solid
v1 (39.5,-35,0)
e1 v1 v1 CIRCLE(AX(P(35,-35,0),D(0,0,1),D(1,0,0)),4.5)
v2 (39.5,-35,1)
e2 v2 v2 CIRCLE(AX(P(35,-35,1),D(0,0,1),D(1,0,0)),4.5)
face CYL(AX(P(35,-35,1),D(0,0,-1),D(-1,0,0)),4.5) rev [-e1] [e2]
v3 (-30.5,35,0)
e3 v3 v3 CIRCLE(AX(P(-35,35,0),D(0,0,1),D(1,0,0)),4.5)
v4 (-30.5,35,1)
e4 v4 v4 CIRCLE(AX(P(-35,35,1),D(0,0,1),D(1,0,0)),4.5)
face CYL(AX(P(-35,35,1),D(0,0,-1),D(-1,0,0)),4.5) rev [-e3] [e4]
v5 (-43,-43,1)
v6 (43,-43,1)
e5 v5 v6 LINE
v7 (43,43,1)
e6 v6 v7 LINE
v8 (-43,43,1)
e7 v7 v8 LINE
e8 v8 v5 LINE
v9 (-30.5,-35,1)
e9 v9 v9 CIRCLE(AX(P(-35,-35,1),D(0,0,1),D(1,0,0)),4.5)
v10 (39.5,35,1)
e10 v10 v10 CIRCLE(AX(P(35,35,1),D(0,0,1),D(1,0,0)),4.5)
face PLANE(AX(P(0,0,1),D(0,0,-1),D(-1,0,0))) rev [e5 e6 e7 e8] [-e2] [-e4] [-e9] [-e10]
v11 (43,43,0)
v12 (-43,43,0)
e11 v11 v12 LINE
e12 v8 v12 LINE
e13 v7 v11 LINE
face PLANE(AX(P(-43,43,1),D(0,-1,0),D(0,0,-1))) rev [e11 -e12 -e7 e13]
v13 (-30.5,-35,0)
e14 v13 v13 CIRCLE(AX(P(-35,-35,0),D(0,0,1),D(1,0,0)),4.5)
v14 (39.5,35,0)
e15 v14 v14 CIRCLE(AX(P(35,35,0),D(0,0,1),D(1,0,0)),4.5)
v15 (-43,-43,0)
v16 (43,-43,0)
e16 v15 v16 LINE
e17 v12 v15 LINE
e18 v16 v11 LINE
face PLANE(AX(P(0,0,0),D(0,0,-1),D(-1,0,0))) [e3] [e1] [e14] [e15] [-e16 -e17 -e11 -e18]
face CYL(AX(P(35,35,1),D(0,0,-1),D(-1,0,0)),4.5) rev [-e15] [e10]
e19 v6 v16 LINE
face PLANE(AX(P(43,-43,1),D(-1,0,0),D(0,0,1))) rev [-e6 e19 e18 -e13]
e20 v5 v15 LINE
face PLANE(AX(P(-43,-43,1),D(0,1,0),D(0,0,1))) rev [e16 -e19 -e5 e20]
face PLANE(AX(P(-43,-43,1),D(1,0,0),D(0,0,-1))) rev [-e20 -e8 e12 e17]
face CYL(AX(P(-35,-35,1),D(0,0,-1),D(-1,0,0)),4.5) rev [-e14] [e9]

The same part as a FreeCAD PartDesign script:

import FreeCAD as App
import Part
import Sketcher
Q = App.Units.Quantity

doc = App.newDocument("Part")
body = doc.addObject("PartDesign::Body", "Body")

sketch1 = doc.addObject("Sketcher::SketchObject", "Sketch")
body.addObject(sketch1)
sketch1.AttachmentSupport = (doc.XY_Plane, [""])
sketch1.MapMode = "FlatFace"
sketch1.addGeometry(Part.LineSegment(App.Vector(-43, 43, 0), App.Vector(-43, -43, 0)), False)
sketch1.addGeometry(Part.LineSegment(App.Vector(-43, -43, 0), App.Vector(43, -43, 0)), False)
sketch1.addGeometry(Part.LineSegment(App.Vector(43, -43, 0), App.Vector(43, 43, 0)), False)
sketch1.addGeometry(Part.LineSegment(App.Vector(43, 43, 0), App.Vector(-43, 43, 0)), False)
sketch1.addGeometry(Part.Circle(App.Vector(-35, -35, 0), App.Vector(0, 0, 1), 4.5), False)
sketch1.addGeometry(Part.Circle(App.Vector(35, -35, 0), App.Vector(0, 0, 1), 4.5), False)
sketch1.addGeometry(Part.Circle(App.Vector(-35, 35, 0), App.Vector(0, 0, 1), 4.5), False)
sketch1.addGeometry(Part.Circle(App.Vector(35, 35, 0), App.Vector(0, 0, 1), 4.5), False)
sketch1.addConstraint(Sketcher.Constraint("Coincident", 0, 2, 1, 1))
sketch1.addConstraint(Sketcher.Constraint("Coincident", 1, 2, 2, 1))
sketch1.addConstraint(Sketcher.Constraint("Coincident", 2, 2, 3, 1))
sketch1.addConstraint(Sketcher.Constraint("Coincident", 3, 2, 0, 1))
sketch1.addConstraint(Sketcher.Constraint("Vertical", 0))
sketch1.addConstraint(Sketcher.Constraint("Horizontal", 1))
sketch1.addConstraint(Sketcher.Constraint("Vertical", 2))
sketch1.addConstraint(Sketcher.Constraint("Horizontal", 3))
sketch1.addConstraint(Sketcher.Constraint("Equal", 4, 5))
sketch1.addConstraint(Sketcher.Constraint("Equal", 5, 6))
sketch1.addConstraint(Sketcher.Constraint("Equal", 6, 7))
sketch1.addConstraint(Sketcher.Constraint("Symmetric", 5, 3, 6, 3, -1, 1))
sketch1.addConstraint(Sketcher.Constraint("Symmetric", 4, 3, 7, 3, -1, 1))
sketch1.addConstraint(Sketcher.Constraint("Symmetric", 0, 2, 2, 2, -1, 1))
sketch1.addConstraint(Sketcher.Constraint("Symmetric", 4, 3, 5, 3, -2))
sketch1.addConstraint(Sketcher.Constraint("Equal", 3, 0))
sketch1.addConstraint(Sketcher.Constraint("Diameter", 4, Q("9 mm")))
sketch1.addConstraint(Sketcher.Constraint("DistanceX", 1, 1, 1, 2, Q("86 mm")))
sketch1.addConstraint(Sketcher.Constraint("DistanceX", 4, 3, -1, 1, Q("35 mm")))
sketch1.addConstraint(Sketcher.Constraint("DistanceY", 4, 3, -1, 1, Q("35 mm")))
pad1 = doc.addObject("PartDesign::Pad", "Pad")
body.addObject(pad1)
pad1.Profile = sketch1
pad1.Length = 1

doc.recompute()
